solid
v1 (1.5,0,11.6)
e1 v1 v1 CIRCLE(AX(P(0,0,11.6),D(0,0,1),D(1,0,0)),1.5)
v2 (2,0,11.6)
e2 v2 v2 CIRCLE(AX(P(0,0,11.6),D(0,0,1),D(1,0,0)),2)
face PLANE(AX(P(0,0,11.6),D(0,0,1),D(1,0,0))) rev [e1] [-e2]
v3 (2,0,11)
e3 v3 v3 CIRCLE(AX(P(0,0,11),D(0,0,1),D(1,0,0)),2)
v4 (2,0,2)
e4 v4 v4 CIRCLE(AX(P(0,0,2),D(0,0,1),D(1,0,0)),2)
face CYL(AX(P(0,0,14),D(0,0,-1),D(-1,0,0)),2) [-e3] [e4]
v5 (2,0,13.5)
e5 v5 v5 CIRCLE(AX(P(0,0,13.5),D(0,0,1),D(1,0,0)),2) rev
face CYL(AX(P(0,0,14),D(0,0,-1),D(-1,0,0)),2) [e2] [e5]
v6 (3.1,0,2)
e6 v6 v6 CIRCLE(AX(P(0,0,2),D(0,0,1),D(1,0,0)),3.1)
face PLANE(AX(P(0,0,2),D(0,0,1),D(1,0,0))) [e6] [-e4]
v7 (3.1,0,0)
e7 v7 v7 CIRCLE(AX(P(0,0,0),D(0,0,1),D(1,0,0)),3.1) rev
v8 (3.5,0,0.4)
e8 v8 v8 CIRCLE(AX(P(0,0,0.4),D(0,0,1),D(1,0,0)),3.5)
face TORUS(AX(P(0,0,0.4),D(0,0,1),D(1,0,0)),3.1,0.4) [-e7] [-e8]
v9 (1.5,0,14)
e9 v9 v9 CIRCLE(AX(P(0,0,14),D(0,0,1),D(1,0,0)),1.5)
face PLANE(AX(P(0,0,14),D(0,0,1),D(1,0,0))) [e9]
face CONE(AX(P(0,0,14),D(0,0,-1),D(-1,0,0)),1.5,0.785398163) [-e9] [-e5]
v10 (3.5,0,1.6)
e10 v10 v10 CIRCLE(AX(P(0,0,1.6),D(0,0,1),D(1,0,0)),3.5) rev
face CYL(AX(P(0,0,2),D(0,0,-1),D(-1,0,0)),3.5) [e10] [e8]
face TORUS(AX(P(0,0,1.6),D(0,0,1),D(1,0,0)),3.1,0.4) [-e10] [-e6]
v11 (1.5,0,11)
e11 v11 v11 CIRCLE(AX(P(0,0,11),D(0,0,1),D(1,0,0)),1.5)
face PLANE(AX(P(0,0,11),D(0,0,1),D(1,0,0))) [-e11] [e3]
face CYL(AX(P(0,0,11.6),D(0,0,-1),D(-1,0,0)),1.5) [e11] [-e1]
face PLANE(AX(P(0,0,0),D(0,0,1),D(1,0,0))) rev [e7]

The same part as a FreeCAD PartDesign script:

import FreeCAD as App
import Part
import Sketcher

V = App.Vector
Q = App.Units.Quantity


def edges_at(feature, points):
    """Names of the edges that pass closest to the given points."""
    edges = feature.Shape.Edges
    near = lambda p: min(range(len(edges)), key=lambda i: edges[i].distToShape(Part.Vertex(*p))[0])
    return sorted({f"Edge{near(p) + 1}" for p in points})

doc = App.newDocument("Part")
params = doc.addObject("Spreadsheet::Sheet", "Params")
for row, (alias, value) in enumerate([
    ("sketch1_diameter", "7 mm"),
    ("pad1_length", "2 mm"),
    ("sketch2_diameter", "4 mm"),
    ("pad2_length", "12 mm"),
    ("sketch3_diameter", "4 mm"),
    ("sketch3_diameter2", "3 mm"),
    ("pocket1_length", "0.6 mm"),
    ("chamfer_size", "0.5 mm"),
    ("fillet_radius", "0.4 mm"),
], start=1):
    params.set(f"A{row}", alias)
    params.set(f"B{row}", "=" + value)
    params.setAlias(f"B{row}", alias)

body = doc.addObject("PartDesign::Body", "Body")

# Sketch on XY plane
sketch1 = doc.addObject("Sketcher::SketchObject", "Sketch")
body.addObject(sketch1)
sketch1.AttachmentSupport = (doc.XY_Plane, [""])
sketch1.MapMode = "FlatFace"
sketch1.addGeometry(Part.Circle(V(0, 0, 0), V(0, 0, 1), 3.5), False)
sketch1.addConstraint(Sketcher.Constraint("Coincident", 0, 3, -1, 1))
sketch1.addConstraint(Sketcher.Constraint("Diameter", 0, Q("7 mm")))
sketch1.setExpression("Constraints[1]", "Params.sketch1_diameter")
pad1 = doc.addObject("PartDesign::Pad", "Pad")
body.addObject(pad1)
pad1.Profile = sketch1
pad1.setExpression("Length", "Params.pad1_length")

# Sketch on XY plane
sketch2 = doc.addObject("Sketcher::SketchObject", "Sketch001")
body.addObject(sketch2)
sketch2.AttachmentSupport = (doc.XY_Plane, [""])
sketch2.MapMode = "FlatFace"
sketch2.AttachmentOffset = App.Placement(V(0, 0, 2), App.Rotation())
sketch2.addGeometry(Part.Circle(V(0, 0, 0), V(0, 0, 1), 2), False)
sketch2.addConstraint(Sketcher.Constraint("Coincident", 0, 3, -1, 1))
sketch2.addConstraint(Sketcher.Constraint("Diameter", 0, Q("4 mm")))
sketch2.setExpression("Constraints[1]", "Params.sketch2_diameter")
pad2 = doc.addObject("PartDesign::Pad", "Pad001")
body.addObject(pad2)
pad2.Profile = sketch2
pad2.setExpression("Length", "Params.pad2_length")

# Sketch on XY plane
sketch3 = doc.addObject("Sketcher::SketchObject", "Sketch002")
body.addObject(sketch3)
sketch3.AttachmentSupport = (doc.XY_Plane, [""])
sketch3.MapMode = "FlatFace"
sketch3.AttachmentOffset = App.Placement(V(0, 0, 11), App.Rotation())
sketch3.addGeometry(Part.Circle(V(0, 0, 0), V(0, 0, 1), 2), False)
sketch3.addGeometry(Part.Circle(V(0, 0, 0), V(0, 0, 1), 1.5), False)
sketch3.addConstraint(Sketcher.Constraint("Coincident", 0, 3, -1, 1))
sketch3.addConstraint(Sketcher.Constraint("Coincident", 1, 3, -1, 1))
sketch3.addConstraint(Sketcher.Constraint("Diameter", 0, Q("4 mm")))
sketch3.addConstraint(Sketcher.Constraint("Diameter", 1, Q("3 mm")))
sketch3.setExpression("Constraints[2]", "Params.sketch3_diameter")
sketch3.setExpression("Constraints[3]", "Params.sketch3_diameter2")
pocket1 = doc.addObject("PartDesign::Pocket", "Pocket")
body.addObject(pocket1)
pocket1.Profile = sketch3
pocket1.setExpression("Length", "Params.pocket1_length")
pocket1.Reversed = True
doc.recompute()

chamfer = doc.addObject("PartDesign::Chamfer", "Chamfer")
body.addObject(chamfer)
chamfer.Base = (pocket1, edges_at(pocket1, [(-2, 0, 14)]))
chamfer.setExpression("Size", "Params.chamfer_size")
doc.recompute()

fillet = doc.addObject("PartDesign::Fillet", "Fillet")
body.addObject(fillet)
fillet.Base = (chamfer, edges_at(chamfer, [(-3.5, 0, 0), (-3.5, 0, 2)]))
fillet.setExpression("Radius", "Params.fillet_radius")

doc.recompute()
